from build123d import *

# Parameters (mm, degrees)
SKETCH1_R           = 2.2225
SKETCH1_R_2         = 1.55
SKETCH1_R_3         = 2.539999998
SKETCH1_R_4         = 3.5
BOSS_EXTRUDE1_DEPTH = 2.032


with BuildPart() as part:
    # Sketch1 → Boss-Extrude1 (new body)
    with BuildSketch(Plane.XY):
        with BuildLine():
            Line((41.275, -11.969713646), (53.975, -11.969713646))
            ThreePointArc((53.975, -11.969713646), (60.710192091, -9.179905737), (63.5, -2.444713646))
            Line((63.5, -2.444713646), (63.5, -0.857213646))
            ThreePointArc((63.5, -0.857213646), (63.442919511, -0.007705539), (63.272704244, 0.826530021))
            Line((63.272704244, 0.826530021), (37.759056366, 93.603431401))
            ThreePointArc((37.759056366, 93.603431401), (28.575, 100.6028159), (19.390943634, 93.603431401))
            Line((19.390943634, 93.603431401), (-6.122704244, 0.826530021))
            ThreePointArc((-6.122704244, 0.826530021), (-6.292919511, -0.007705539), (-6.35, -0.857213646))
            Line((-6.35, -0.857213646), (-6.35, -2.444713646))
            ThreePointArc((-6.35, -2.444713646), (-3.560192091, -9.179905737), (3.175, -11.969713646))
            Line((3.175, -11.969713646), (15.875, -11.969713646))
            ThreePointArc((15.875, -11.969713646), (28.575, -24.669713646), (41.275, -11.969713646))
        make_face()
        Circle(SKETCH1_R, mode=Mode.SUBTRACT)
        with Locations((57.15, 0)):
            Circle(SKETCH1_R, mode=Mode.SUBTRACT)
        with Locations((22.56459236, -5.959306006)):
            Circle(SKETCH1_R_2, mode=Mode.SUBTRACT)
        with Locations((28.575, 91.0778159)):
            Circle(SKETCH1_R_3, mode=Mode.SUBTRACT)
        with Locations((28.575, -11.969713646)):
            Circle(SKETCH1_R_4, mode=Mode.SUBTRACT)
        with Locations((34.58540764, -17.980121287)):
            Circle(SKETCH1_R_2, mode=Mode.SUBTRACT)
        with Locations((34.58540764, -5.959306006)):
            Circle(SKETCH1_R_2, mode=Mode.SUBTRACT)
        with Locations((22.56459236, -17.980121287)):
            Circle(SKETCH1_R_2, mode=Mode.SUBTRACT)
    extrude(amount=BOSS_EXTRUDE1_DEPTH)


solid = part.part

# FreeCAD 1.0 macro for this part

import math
import FreeCAD as App
import Part
import Sketcher
from FreeCAD import Vector
Q = App.Units.Quantity

doc = App.newDocument("Part")
body = doc.addObject("PartDesign::Body", "Body")

# Sketch on XY plane
sketch1 = body.newObject("Sketcher::SketchObject", "Sketch")
sketch1.AttachmentSupport = (doc.getObject("XY_Plane"), [""])
sketch1.MapMode = "FlatFace"
sketch1.addGeometry(Part.LineSegment(Vector(41.3, -12, 0), Vector(54, -12, 0)), False)
sketch1.addGeometry(Part.ArcOfCircle(Part.Circle(Vector(54, -2.4, 0), Vector(0, 0, 1), 9.5), math.radians(-90), math.radians(0)), False)
sketch1.addGeometry(Part.LineSegment(Vector(63.5, -2.4, 0), Vector(63.5, -0.9, 0)), False)
sketch1.addGeometry(Part.ArcOfCircle(Part.Circle(Vector(57.1, -0.9, 0), Vector(0, 0, 1), 6.4), math.radians(0), math.radians(15.38)), False)
sketch1.addGeometry(Part.LineSegment(Vector(63.3, 0.8, 0), Vector(37.8, 93.6, 0)), False)
sketch1.addGeometry(Part.ArcOfCircle(Part.Circle(Vector(28.6, 91.1, 0), Vector(0, 0, 1), 9.5), math.radians(15), math.radians(165)), False)
sketch1.addGeometry(Part.LineSegment(Vector(19.4, 93.6, 0), Vector(-6.1, 0.8, 0)), False)
sketch1.addGeometry(Part.ArcOfCircle(Part.Circle(Vector(0, -0.9, 0), Vector(0, 0, 1), 6.4), math.radians(164.62), math.radians(180)), False)
sketch1.addGeometry(Part.LineSegment(Vector(-6.3, -0.9, 0), Vector(-6.3, -2.4, 0)), False)
sketch1.addGeometry(Part.ArcOfCircle(Part.Circle(Vector(3.2, -2.4, 0), Vector(0, 0, 1), 9.5), math.radians(180), math.radians(270)), False)
sketch1.addGeometry(Part.LineSegment(Vector(3.2, -12, 0), Vector(15.9, -12, 0)), False)
sketch1.addGeometry(Part.ArcOfCircle(Part.Circle(Vector(28.6, -12, 0), Vector(0, 0, 1), 12.7), math.radians(180), math.radians(360)), False)
sketch1.addGeometry(Part.Circle(Vector(0, 0, 0), Vector(0, 0, 1), 2.2), False)
sketch1.addGeometry(Part.Circle(Vector(22.6, -18, 0), Vector(0, 0, 1), 1.6), False)
sketch1.addGeometry(Part.Circle(Vector(22.6, -6, 0), Vector(0, 0, 1), 1.6), False)
sketch1.addGeometry(Part.Circle(Vector(34.6, -18, 0), Vector(0, 0, 1), 1.6), False)
sketch1.addGeometry(Part.Circle(Vector(28.6, -12, 0), Vector(0, 0, 1), 3.5), False)
sketch1.addGeometry(Part.Circle(Vector(34.6, -6, 0), Vector(0, 0, 1), 1.6), False)
sketch1.addGeometry(Part.Circle(Vector(57.1, 0, 0), Vector(0, 0, 1), 2.2), False)
sketch1.addGeometry(Part.Circle(Vector(28.6, 91.1, 0), Vector(0, 0, 1), 2.5), False)
sketch1.addConstraint(Sketcher.Constraint("Tangent", 0, 2, 1, 1))
sketch1.addConstraint(Sketcher.Constraint("Tangent", 1, 2, 2, 1))
sketch1.addConstraint(Sketcher.Constraint("Tangent", 2, 2, 3, 1))
sketch1.addConstraint(Sketcher.Constraint("Tangent", 3, 2, 4, 1))
sketch1.addConstraint(Sketcher.Constraint("Tangent", 4, 2, 5, 1))
sketch1.addConstraint(Sketcher.Constraint("Tangent", 5, 2, 6, 1))
sketch1.addConstraint(Sketcher.Constraint("Tangent", 6, 2, 7, 1))
sketch1.addConstraint(Sketcher.Constraint("Tangent", 7, 2, 8, 1))
sketch1.addConstraint(Sketcher.Constraint("Tangent", 8, 2, 9, 1))
sketch1.addConstraint(Sketcher.Constraint("Tangent", 9, 2, 10, 1))
sketch1.addConstraint(Sketcher.Constraint("Coincident", 10, 2, 11, 1))
sketch1.addConstraint(Sketcher.Constraint("Coincident", 11, 2, 0, 1))
sketch1.addConstraint(Sketcher.Constraint("Horizontal", 0))
sketch1.addConstraint(Sketcher.Constraint("Vertical", 2))
sketch1.addConstraint(Sketcher.Constraint("Vertical", 8))
sketch1.addConstraint(Sketcher.Constraint("Horizontal", 10))
sketch1.addConstraint(Sketcher.Constraint("Coincident", 12, 3, -1, 1))
sketch1.addConstraint(Sketcher.Constraint("Coincident", 16, 3, 11, 3))
sketch1.addConstraint(Sketcher.Constraint("Coincident", 19, 3, 5, 3))
sketch1.addConstraint(Sketcher.Constraint("Equal", 1, 5))
sketch1.addConstraint(Sketcher.Constraint("Equal", 3, 7))
sketch1.addConstraint(Sketcher.Constraint("Equal", 5, 9))
sketch1.addConstraint(Sketcher.Constraint("Equal", 13, 14))
sketch1.addConstraint(Sketcher.Constraint("Equal", 14, 15))
sketch1.addConstraint(Sketcher.Constraint("Equal", 15, 17))
sketch1.addConstraint(Sketcher.Constraint("Equal", 12, 18))
sketch1.addConstraint(Sketcher.Constraint("PointOnObject", 7, 3, -2))
sketch1.addConstraint(Sketcher.Constraint("PointOnObject", 18, 3, -1))
sketch1.addConstraint(Sketcher.Constraint("Horizontal", 3, 3, 7, 3))
sketch1.addConstraint(Sketcher.Constraint("Horizontal", 1, 3, 9, 3))
sketch1.addConstraint(Sketcher.Constraint("Horizontal", 13, 3, 15, 3))
sketch1.addConstraint(Sketcher.Constraint("Horizontal", 14, 3, 17, 3))
sketch1.addConstraint(Sketcher.Constraint("Horizontal", 16, 3, 0, 2))
sketch1.addConstraint(Sketcher.Constraint("Horizontal", 4, 2, 5, 2))
sketch1.addConstraint(Sketcher.Constraint("Vertical", 5, 3, 11, 3))
sketch1.addConstraint(Sketcher.Constraint("Vertical", 13, 3, 14, 3))
sketch1.addConstraint(Sketcher.Constraint("Vertical", 15, 3, 17, 3))
sketch1.addConstraint(Sketcher.Constraint("Vertical", 3, 3, 18, 3))
sketch1.addConstraint(Sketcher.Constraint("Diameter", 19, Q("0.2 in")))
sketch1.addConstraint(Sketcher.Constraint("Radius", 11, Q("0.5 in")))
sketch1.addConstraint(Sketcher.Constraint("Radius", 3, Q("0.25 in")))
sketch1.addConstraint(Sketcher.Constraint("Diameter", 12, Q("0.175 in")))
sketch1.addConstraint(Sketcher.Constraint("DistanceX", 0, 1, 0, 2, Q("0.5 in")))
sketch1.addConstraint(Sketcher.Constraint("Radius", 1, Q("0.375 in")))
sketch1.addConstraint(Sketcher.Constraint("Diameter", 13, Q("3.1 mm")))
sketch1.addConstraint(Sketcher.Constraint("Diameter", 16, Q("7 mm")))
sketch1.addConstraint(Sketcher.Constraint("DistanceY", 2, 1, 2, 2, Q("0.0625 in")))
sketch1.addConstraint(Sketcher.Constraint("DistanceY", 3, 2, 4, 2, Q("92.776901 mm")))
sketch1.addConstraint(Sketcher.Constraint("DistanceY", 13, 3, -1, 1, Q("17.980121 mm")))
sketch1.addConstraint(Sketcher.Constraint("DistanceY", -1, 1, 3, 2, Q("0.82653 mm")))
sketch1.addConstraint(Sketcher.Constraint("DistanceX", -1, 1, 13, 3, Q("22.564592 mm")))
sketch1.addConstraint(Sketcher.Constraint("DistanceY", 14, 3, -1, 1, Q("5.959306 mm")))
sketch1.addConstraint(Sketcher.Constraint("DistanceX", -1, 1, 15, 3, Q("34.585408 mm")))
pad1 = body.newObject("PartDesign::Pad", "Pad")
pad1.Profile = sketch1
pad1.Length = Q("0.08 in")

doc.recompute()
